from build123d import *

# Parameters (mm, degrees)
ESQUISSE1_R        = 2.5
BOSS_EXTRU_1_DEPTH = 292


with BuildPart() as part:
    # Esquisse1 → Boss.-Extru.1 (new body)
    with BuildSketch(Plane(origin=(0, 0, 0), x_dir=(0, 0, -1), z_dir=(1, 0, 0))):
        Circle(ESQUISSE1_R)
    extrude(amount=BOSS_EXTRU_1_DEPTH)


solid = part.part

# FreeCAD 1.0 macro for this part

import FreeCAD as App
import Part
import Sketcher
from FreeCAD import Vector
Q = App.Units.Quantity

doc = App.newDocument("Part")
body = doc.addObject("PartDesign::Body", "Body")

# Sketch on YZ plane
sketch1 = body.newObject("Sketcher::SketchObject", "Sketch")
sketch1.AttachmentSupport = (doc.getObject("YZ_Plane"), [""])
sketch1.MapMode = "FlatFace"
sketch1.addGeometry(Part.Circle(Vector(0, 0, 0), Vector(0, 0, 1), 2.5), False)
sketch1.addConstraint(Sketcher.Constraint("Coincident", 0, 3, -1, 1))
sketch1.addConstraint(Sketcher.Constraint("Diameter", 0, Q("5 mm")))
pad1 = body.newObject("PartDesign::Pad", "Pad")
pad1.Profile = sketch1
pad1.Length = 292

doc.recompute()
